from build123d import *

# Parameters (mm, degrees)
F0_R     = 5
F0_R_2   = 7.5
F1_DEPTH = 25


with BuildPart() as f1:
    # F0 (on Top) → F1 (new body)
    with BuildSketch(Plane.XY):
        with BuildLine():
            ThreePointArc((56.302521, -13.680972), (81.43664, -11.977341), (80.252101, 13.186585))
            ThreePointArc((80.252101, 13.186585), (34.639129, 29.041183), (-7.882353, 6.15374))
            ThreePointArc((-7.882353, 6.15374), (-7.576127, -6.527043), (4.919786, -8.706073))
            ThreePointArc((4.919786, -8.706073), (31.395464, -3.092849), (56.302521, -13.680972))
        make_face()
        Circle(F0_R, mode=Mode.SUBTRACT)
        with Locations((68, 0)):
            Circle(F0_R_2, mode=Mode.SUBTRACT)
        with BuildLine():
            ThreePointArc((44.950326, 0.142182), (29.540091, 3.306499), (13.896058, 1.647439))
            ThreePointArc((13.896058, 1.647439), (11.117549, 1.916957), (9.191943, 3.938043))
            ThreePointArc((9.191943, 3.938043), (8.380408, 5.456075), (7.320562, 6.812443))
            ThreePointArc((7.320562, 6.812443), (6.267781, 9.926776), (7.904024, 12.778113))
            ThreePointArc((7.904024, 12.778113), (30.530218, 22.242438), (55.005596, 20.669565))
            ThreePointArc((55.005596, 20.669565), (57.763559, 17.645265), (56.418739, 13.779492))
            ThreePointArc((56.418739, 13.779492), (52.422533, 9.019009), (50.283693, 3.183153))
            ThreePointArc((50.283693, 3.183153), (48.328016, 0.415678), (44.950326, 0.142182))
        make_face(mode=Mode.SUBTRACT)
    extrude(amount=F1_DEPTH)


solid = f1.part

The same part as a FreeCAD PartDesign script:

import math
import FreeCAD as App
import Part
import Sketcher

doc = App.newDocument("Part")
body = doc.addObject("PartDesign::Body", "Body")

sketch1 = doc.addObject("Sketcher::SketchObject", "Sketch")
body.addObject(sketch1)
sketch1.AttachmentSupport = (doc.XY_Plane, [""])
sketch1.MapMode = "FlatFace"
sketch1.addGeometry([
    Part.ArcOfCircle(Part.Circle(App.Vector(68, 0, 0), App.Vector(0, 0, 1), 18), math.radians(-130.531041), math.radians(47.103799)),
    Part.ArcOfCircle(Part.Circle(App.Vector(39.411765, -30.7687, 0), App.Vector(0, 0, 1), 60.000001), math.radians(47.103802), math.radians(142.0209)),
    Part.ArcOfCircle(Part.Circle(App.Vector(0.000001, 0.000001, 0), App.Vector(0, 0, 1), 10), math.radians(142.020905), math.radians(299.470708)),
    Part.ArcOfCircle(Part.Circle(App.Vector(27.058823, -47.883401, 0), App.Vector(0, 0, 1), 45), math.radians(49.468957), math.radians(119.470713)),
    Part.Circle(App.Vector(0, 0, 0), App.Vector(0, 0, 1), 5),
    Part.Circle(App.Vector(68, 0, 0), App.Vector(0, 0, 1), 7.5),
    Part.ArcOfCircle(Part.Circle(App.Vector(46.346736, 3.89052, 0), App.Vector(0, 0, 1), 4), math.radians(-110.432426), math.radians(-10.185859)),
    Part.ArcOfCircle(Part.Circle(App.Vector(27.058824, -47.88339, 0), App.Vector(0, 0, 1), 51.249989), math.radians(69.567567), math.radians(104.882316)),
    Part.ArcOfCircle(Part.Circle(App.Vector(12.86872, 5.513261, 0), App.Vector(0, 0, 1), 4), math.radians(-156.80857), math.radians(-75.117687)),
    Part.ArcOfCircle(Part.Circle(App.Vector(-0.000031, -0.000018, 0), App.Vector(0, 0, 1), 10.000035), math.radians(23.19145), math.radians(42.940909)),
    Part.ArcOfCircle(Part.Circle(App.Vector(10.248786, 9.53742, 0), App.Vector(0, 0, 1), 3.999999), math.radians(125.887137), math.radians(222.940966)),
    Part.ArcOfCircle(Part.Circle(App.Vector(39.411766, -30.768703, 0), App.Vector(0, 0, 1), 53.750005), math.radians(73.134994), math.radians(125.887137)),
    Part.ArcOfCircle(Part.Circle(App.Vector(53.845125, 16.841601, 0), App.Vector(0, 0, 1), 4), math.radians(-49.95392), math.radians(73.134994)),
    Part.ArcOfCircle(Part.Circle(App.Vector(68, 0, 0), App.Vector(0, 0, 1), 18), math.radians(130.046073), math.radians(169.814142)),
], False)
sketch1.addConstraint([
    Sketcher.Constraint("Coincident", 0, 2, 1, 1),
    Sketcher.Constraint("Coincident", 1, 2, 2, 1),
    Sketcher.Constraint("Coincident", 2, 2, 3, 2),
    Sketcher.Constraint("Coincident", 3, 1, 0, 1),
    Sketcher.Constraint("Coincident", 6, 1, 7, 1),
    Sketcher.Constraint("Coincident", 7, 2, 8, 2),
    Sketcher.Constraint("Coincident", 8, 1, 9, 1),
    Sketcher.Constraint("Coincident", 9, 2, 10, 2),
    Sketcher.Constraint("Coincident", 10, 1, 11, 2),
    Sketcher.Constraint("Coincident", 11, 1, 12, 2),
    Sketcher.Constraint("Coincident", 12, 1, 13, 1),
    Sketcher.Constraint("Coincident", 13, 2, 6, 2),
    Sketcher.Constraint("Coincident", 2, 3, -1, 1),
    Sketcher.Constraint("Coincident", 4, 3, -1, 1),
    Sketcher.Constraint("Coincident", 5, 3, 0, 3),
    Sketcher.Constraint("Coincident", 11, 3, 1, 3),
    Sketcher.Constraint("Coincident", 13, 3, 0, 3),
    Sketcher.Constraint("PointOnObject", 0, 3, -1),
    Sketcher.Constraint("Diameter", 4, 10.0),
    Sketcher.Constraint("Diameter", 5, 15.0),
    Sketcher.Constraint("Radius", 0, 18.0),
    Sketcher.Constraint("Radius", 1, 60.000001),
    Sketcher.Constraint("Radius", 2, 10.0),
    Sketcher.Constraint("Radius", 3, 45.0),
    Sketcher.Constraint("Radius", 6, 4.0),
    Sketcher.Constraint("Radius", 8, 4.0),
    Sketcher.Constraint("Radius", 10, 3.999999),
    Sketcher.Constraint("Radius", 12, 4.0),
    Sketcher.Constraint("Radius", 13, 18.0),
    Sketcher.Constraint("DistanceX", -1, 1, 0, 3, 68.0),
    Sketcher.Constraint("Radius", 7, 51.249989),
    Sketcher.Constraint("Radius", 9, 10.000035),
    Sketcher.Constraint("Radius", 11, 53.750005),
    Sketcher.Constraint("DistanceX", 2, 2, 10, 3, 5.329),
    Sketcher.Constraint("DistanceX", -1, 1, 0, 2, 80.252101),
    Sketcher.Constraint("DistanceY", 6, 3, 10, 3, 5.6469),
    Sketcher.Constraint("DistanceX", 6, 1, 12, 3, 8.894799),
    Sketcher.Constraint("DistanceY", 8, 1, 9, 2, 2.8744),
    Sketcher.Constraint("DistanceY", -1, 1, 6, 3, 3.89052),
    Sketcher.Constraint("DistanceY", 7, 3, -1, 1, 47.88339),
    Sketcher.Constraint("DistanceX", -1, 1, 8, 3, 12.86872),
    Sketcher.Constraint("DistanceY", -1, 1, 1, 2, 6.15374),
    Sketcher.Constraint("DistanceX", -1, 1, 3, 1, 56.302521),
    Sketcher.Constraint("DistanceY", -1, 1, 7, 2, 1.647439),
    Sketcher.Constraint("DistanceX", -1, 1, 12, 1, 56.418739),
    Sketcher.Constraint("DistanceX", 9, 2, 8, 1, 1.871381),
    Sketcher.Constraint("DistanceX", 10, 1, 10, 3, 2.344762),
    Sketcher.Constraint("DistanceX", 12, 3, 11, 1, 1.160471),
    Sketcher.Constraint("DistanceY", 6, 1, 13, 2, 3.040971),
])
pad1 = doc.addObject("PartDesign::Pad", "Pad")
body.addObject(pad1)
pad1.Profile = sketch1
pad1.Length = 25

doc.recompute()
